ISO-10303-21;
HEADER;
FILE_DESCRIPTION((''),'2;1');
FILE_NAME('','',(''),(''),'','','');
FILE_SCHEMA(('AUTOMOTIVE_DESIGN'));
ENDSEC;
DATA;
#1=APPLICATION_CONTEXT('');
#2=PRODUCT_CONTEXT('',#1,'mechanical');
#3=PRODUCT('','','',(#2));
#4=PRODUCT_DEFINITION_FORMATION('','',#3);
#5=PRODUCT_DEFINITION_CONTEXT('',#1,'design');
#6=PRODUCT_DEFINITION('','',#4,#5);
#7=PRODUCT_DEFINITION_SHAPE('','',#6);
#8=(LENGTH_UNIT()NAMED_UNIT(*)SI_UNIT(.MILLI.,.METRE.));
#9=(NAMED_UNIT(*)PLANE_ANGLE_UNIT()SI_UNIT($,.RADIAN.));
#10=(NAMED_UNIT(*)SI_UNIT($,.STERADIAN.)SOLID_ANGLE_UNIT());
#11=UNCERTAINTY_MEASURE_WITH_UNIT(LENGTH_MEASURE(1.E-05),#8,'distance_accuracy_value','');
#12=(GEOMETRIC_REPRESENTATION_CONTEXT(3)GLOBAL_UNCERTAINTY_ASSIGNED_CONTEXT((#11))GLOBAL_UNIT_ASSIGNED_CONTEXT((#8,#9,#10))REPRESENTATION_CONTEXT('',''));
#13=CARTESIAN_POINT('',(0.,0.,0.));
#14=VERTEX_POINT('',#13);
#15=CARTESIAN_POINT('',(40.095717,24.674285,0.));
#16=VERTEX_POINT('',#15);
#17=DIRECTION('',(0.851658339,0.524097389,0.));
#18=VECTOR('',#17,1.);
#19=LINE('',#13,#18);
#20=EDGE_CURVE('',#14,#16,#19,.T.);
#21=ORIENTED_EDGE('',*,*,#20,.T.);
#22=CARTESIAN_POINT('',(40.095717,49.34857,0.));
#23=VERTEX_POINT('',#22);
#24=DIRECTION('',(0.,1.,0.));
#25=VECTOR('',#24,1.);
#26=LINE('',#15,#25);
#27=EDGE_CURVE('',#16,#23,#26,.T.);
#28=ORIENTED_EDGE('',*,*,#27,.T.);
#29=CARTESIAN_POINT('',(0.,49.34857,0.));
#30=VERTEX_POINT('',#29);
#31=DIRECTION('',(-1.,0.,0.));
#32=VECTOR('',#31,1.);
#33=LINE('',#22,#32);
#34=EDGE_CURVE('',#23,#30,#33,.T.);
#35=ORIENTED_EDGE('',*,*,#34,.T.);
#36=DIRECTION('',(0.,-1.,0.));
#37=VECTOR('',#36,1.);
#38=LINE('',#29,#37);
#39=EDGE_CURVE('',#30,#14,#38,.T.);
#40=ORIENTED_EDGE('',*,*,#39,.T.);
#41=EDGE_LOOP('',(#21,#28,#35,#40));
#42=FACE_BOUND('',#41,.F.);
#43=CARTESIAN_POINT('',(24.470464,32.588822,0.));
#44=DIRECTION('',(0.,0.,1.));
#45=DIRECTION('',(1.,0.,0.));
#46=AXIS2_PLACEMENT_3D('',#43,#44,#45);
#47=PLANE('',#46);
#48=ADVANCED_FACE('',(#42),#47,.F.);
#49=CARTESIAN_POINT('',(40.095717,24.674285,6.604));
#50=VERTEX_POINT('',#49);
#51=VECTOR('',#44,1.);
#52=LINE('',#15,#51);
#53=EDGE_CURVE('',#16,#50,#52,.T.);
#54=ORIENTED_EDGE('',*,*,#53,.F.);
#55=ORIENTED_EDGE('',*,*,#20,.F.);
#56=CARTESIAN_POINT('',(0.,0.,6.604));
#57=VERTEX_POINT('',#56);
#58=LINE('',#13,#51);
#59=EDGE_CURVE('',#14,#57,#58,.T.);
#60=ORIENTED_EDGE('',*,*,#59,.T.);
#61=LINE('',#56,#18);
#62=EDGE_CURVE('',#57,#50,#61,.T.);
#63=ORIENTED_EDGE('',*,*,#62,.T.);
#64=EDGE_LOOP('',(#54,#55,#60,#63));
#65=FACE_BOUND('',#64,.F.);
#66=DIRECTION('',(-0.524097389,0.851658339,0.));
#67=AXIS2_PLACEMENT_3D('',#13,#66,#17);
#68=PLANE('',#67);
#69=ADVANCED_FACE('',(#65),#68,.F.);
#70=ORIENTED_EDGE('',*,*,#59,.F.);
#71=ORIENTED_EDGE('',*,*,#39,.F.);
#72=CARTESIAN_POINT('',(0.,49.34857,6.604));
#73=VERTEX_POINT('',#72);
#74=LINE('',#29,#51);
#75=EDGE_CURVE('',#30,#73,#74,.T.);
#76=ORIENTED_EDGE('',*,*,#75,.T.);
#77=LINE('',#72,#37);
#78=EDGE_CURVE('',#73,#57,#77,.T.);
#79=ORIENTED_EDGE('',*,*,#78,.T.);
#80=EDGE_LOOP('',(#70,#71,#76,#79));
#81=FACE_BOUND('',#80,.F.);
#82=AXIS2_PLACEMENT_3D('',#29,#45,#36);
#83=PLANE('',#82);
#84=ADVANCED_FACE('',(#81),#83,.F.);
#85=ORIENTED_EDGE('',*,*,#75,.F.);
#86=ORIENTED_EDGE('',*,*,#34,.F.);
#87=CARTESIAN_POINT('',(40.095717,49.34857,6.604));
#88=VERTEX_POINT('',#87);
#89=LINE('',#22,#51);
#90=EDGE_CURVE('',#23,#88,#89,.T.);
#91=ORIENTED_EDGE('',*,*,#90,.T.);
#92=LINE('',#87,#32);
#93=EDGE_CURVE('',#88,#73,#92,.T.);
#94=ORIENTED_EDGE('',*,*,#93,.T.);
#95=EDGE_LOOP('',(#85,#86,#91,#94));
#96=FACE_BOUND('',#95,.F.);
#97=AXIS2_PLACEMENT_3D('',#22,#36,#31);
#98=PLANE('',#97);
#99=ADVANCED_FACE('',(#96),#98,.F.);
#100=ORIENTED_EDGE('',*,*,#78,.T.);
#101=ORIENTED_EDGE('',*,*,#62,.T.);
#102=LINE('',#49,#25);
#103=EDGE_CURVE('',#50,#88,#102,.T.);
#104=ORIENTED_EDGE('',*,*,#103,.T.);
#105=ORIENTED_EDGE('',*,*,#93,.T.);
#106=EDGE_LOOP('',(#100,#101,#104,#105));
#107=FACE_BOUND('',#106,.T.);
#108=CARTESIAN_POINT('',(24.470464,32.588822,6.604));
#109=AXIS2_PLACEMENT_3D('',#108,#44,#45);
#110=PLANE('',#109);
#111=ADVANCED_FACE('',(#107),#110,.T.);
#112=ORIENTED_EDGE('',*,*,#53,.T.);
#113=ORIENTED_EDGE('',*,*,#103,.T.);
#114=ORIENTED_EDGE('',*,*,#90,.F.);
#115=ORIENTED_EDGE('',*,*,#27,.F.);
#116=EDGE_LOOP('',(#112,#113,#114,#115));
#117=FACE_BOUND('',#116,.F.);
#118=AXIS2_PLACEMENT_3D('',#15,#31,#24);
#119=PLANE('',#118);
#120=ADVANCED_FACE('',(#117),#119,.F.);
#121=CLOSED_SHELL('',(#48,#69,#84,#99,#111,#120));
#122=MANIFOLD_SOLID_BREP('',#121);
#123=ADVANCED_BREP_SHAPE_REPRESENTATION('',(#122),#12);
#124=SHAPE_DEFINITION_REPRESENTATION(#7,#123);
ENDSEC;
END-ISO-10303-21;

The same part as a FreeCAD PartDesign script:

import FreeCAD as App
import Part
import Sketcher


def add_polygon(sketch, points):
    """Adds a closed chain of lines whose ends are joined by coincident constraints."""
    first, n = sketch.GeometryCount, len(points)
    for a, b in zip(points, points[1:] + points[:1]):
        sketch.addGeometry(Part.LineSegment(App.Vector(*a, 0), App.Vector(*b, 0)), False)
    for i in range(n):
        sketch.addConstraint(Sketcher.Constraint("Coincident", first + i, 2, first + (i + 1) % n, 1))

doc = App.newDocument("Part")
params = doc.addObject("Spreadsheet::Sheet", "Params")
for row, (alias, value) in enumerate([
    ("pad1_length", "0.26 in"),
], start=1):
    params.set(f"A{row}", alias)
    params.set(f"B{row}", "=" + value)
    params.setAlias(f"B{row}", alias)

body = doc.addObject("PartDesign::Body", "Body")

# Sketch on XY plane
sketch1 = body.newObject("Sketcher::SketchObject", "Sketch")
sketch1.AttachmentSupport = (doc.getObject("XY_Plane"), [""])
sketch1.MapMode = "FlatFace"
add_polygon(sketch1, [(0, 0), (40, 25), (40, 49), (0, 49)])  # lines 0-3
sketch1.addConstraint([
    Sketcher.Constraint("Vertical", 1),
    Sketcher.Constraint("Horizontal", 2),
    Sketcher.Constraint("Vertical", 3),
    Sketcher.Constraint("Coincident", 3, 2, -1, 1),
    Sketcher.Constraint("DistanceY", 3, 2, 3, 1, 49.34857),
    Sketcher.Constraint("Distance", 0, 47.07958),
    Sketcher.Constraint("DistanceX", 2, 2, 2, 1, 40.095717),
])
pad1 = body.newObject("PartDesign::Pad", "Pad")
pad1.Profile = sketch1
pad1.setExpression("Length", "Params.pad1_length")

doc.recompute()
